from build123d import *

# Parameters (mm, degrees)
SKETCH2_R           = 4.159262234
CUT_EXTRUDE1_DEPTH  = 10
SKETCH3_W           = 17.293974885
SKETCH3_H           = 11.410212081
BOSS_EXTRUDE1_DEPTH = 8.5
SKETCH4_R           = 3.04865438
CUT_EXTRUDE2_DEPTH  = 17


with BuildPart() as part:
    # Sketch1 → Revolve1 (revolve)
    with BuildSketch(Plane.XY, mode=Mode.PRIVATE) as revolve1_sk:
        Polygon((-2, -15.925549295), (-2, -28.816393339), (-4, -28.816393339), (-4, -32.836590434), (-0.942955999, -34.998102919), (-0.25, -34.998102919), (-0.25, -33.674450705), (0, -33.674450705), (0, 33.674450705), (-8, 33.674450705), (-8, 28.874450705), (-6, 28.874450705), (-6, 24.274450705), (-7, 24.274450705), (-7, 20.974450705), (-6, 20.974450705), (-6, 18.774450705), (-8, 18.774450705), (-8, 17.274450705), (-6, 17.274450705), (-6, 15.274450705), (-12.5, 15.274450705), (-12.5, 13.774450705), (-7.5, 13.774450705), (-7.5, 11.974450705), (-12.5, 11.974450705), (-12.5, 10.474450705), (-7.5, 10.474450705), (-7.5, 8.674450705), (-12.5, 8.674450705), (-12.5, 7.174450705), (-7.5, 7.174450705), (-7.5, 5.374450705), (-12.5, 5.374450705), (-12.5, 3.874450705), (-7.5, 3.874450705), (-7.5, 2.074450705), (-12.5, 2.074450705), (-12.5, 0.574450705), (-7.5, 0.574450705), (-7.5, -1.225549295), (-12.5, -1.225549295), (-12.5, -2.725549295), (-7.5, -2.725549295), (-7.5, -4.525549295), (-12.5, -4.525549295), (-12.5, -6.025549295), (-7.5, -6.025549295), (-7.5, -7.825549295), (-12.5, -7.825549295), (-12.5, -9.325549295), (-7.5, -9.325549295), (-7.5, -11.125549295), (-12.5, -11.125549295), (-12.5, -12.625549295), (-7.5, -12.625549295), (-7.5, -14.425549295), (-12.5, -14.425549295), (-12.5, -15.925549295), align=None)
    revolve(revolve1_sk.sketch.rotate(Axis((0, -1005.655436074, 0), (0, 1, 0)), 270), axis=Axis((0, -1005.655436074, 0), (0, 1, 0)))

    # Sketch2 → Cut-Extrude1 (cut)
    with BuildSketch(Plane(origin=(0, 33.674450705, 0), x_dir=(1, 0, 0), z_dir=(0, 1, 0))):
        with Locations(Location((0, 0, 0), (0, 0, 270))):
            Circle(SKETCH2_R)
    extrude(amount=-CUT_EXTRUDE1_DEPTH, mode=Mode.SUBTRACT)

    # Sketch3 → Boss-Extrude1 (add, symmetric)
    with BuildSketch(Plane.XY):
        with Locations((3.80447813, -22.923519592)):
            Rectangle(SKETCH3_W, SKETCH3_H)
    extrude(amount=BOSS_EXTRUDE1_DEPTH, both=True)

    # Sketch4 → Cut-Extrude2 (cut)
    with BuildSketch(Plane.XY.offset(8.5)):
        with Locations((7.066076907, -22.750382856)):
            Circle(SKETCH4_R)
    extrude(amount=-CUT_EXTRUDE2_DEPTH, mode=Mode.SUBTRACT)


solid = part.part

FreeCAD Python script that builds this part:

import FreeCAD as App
import Part
import Sketcher
from FreeCAD import Vector


def add_polygon(sketch, points):
    """Adds a closed chain of lines whose ends are joined by coincident constraints."""
    first, n = sketch.GeometryCount, len(points)
    for a, b in zip(points, points[1:] + points[:1]):
        sketch.addGeometry(Part.LineSegment(App.Vector(*a, 0), App.Vector(*b, 0)), False)
    for i in range(n):
        sketch.addConstraint(Sketcher.Constraint("Coincident", first + i, 2, first + (i + 1) % n, 1))

doc = App.newDocument("Part")
body = doc.addObject("PartDesign::Body", "Body")

sketch1 = body.newObject("Sketcher::SketchObject", "Sketch")
sketch1.AttachmentSupport = (doc.getObject("XY_Plane"), [""])
sketch1.MapMode = "FlatFace"
add_polygon(sketch1, [(-2, -15.925549), (-2, -28.816393), (-4, -28.816393), (-4, -32.83659), (-0.942956, -34.998103), (-0.25, -34.998103), (-0.25, -33.674451), (0, -33.674451), (0, 33.674451), (-8, 33.674451), (-8, 28.874451), (-6, 28.874451), (-6, 24.274451), (-7, 24.274451), (-7, 20.974451), (-6, 20.974451), (-6, 18.774451), (-8, 18.774451), (-8, 17.274451), (-6, 17.274451), (-6, 15.274451), (-12.5, 15.274451), (-12.5, 13.774451), (-7.5, 13.774451), (-7.5, 11.974451), (-12.5, 11.974451), (-12.5, 10.474451), (-7.5, 10.474451), (-7.5, 8.674451), (-12.5, 8.674451), (-12.5, 7.174451), (-7.5, 7.174451), (-7.5, 5.374451), (-12.5, 5.374451), (-12.5, 3.874451), (-7.5, 3.874451), (-7.5, 2.074451), (-12.5, 2.074451), (-12.5, 0.574451), (-7.5, 0.574451), (-7.5, -1.225549), (-12.5, -1.225549), (-12.5, -2.725549), (-7.5, -2.725549), (-7.5, -4.525549), (-12.5, -4.525549), (-12.5, -6.025549), (-7.5, -6.025549), (-7.5, -7.825549), (-12.5, -7.825549), (-12.5, -9.325549), (-7.5, -9.325549), (-7.5, -11.125549), (-12.5, -11.125549), (-12.5, -12.625549), (-7.5, -12.625549), (-7.5, -14.425549), (-12.5, -14.425549), (-12.5, -15.925549)])
sketch1.addConstraint([
    Sketcher.Constraint("Vertical", 0),
    Sketcher.Constraint("Horizontal", 1),
    Sketcher.Constraint("Vertical", 2),
    Sketcher.Constraint("Horizontal", 4),
    Sketcher.Constraint("Vertical", 5),
    Sketcher.Constraint("Horizontal", 6),
    Sketcher.Constraint("Vertical", 7),
    Sketcher.Constraint("Horizontal", 8),
    Sketcher.Constraint("Vertical", 9),
    Sketcher.Constraint("Horizontal", 10),
    Sketcher.Constraint("Vertical", 11),
    Sketcher.Constraint("Horizontal", 12),
    Sketcher.Constraint("Vertical", 13),
    Sketcher.Constraint("Horizontal", 14),
    Sketcher.Constraint("Vertical", 15),
    Sketcher.Constraint("Horizontal", 16),
    Sketcher.Constraint("Vertical", 17),
    Sketcher.Constraint("Horizontal", 18),
    Sketcher.Constraint("Vertical", 19),
    Sketcher.Constraint("Horizontal", 20),
    Sketcher.Constraint("Vertical", 21),
    Sketcher.Constraint("Horizontal", 22),
    Sketcher.Constraint("Vertical", 23),
    Sketcher.Constraint("Horizontal", 24),
    Sketcher.Constraint("Vertical", 25),
    Sketcher.Constraint("Horizontal", 26),
    Sketcher.Constraint("Vertical", 27),
    Sketcher.Constraint("Horizontal", 28),
    Sketcher.Constraint("Vertical", 29),
    Sketcher.Constraint("Horizontal", 30),
    Sketcher.Constraint("Vertical", 31),
    Sketcher.Constraint("Horizontal", 32),
    Sketcher.Constraint("Vertical", 33),
    Sketcher.Constraint("Horizontal", 34),
    Sketcher.Constraint("Vertical", 35),
    Sketcher.Constraint("Horizontal", 36),
    Sketcher.Constraint("Vertical", 37),
    Sketcher.Constraint("Horizontal", 38),
    Sketcher.Constraint("Vertical", 39),
    Sketcher.Constraint("Horizontal", 40),
    Sketcher.Constraint("Vertical", 41),
    Sketcher.Constraint("Horizontal", 42),
    Sketcher.Constraint("Vertical", 43),
    Sketcher.Constraint("Horizontal", 44),
    Sketcher.Constraint("Vertical", 45),
    Sketcher.Constraint("Horizontal", 46),
    Sketcher.Constraint("Vertical", 47),
    Sketcher.Constraint("Horizontal", 48),
    Sketcher.Constraint("Vertical", 49),
    Sketcher.Constraint("Horizontal", 50),
    Sketcher.Constraint("Vertical", 51),
    Sketcher.Constraint("Horizontal", 52),
    Sketcher.Constraint("Vertical", 53),
    Sketcher.Constraint("Horizontal", 54),
    Sketcher.Constraint("Vertical", 55),
    Sketcher.Constraint("Horizontal", 56),
    Sketcher.Constraint("Vertical", 57),
    Sketcher.Constraint("Horizontal", 58),
    Sketcher.Constraint("Symmetric", 6, 2, 7, 2, -1, 1),
    Sketcher.Constraint("Vertical", 11, 2, 14, 2),
    Sketcher.Constraint("Vertical", 9, 2, 16, 2),
    Sketcher.Constraint("Vertical", 15, 2, 18, 2),
    Sketcher.Constraint("Vertical", 21, 2, 24, 2),
    Sketcher.Constraint("Vertical", 23, 2, 26, 2),
    Sketcher.Constraint("Vertical", 25, 2, 28, 2),
    Sketcher.Constraint("Vertical", 27, 2, 30, 2),
    Sketcher.Constraint("Vertical", 29, 2, 32, 2),
    Sketcher.Constraint("Vertical", 31, 2, 34, 2),
    Sketcher.Constraint("Vertical", 33, 2, 36, 2),
    Sketcher.Constraint("Vertical", 35, 2, 38, 2),
    Sketcher.Constraint("Vertical", 37, 2, 40, 2),
    Sketcher.Constraint("Vertical", 39, 2, 42, 2),
    Sketcher.Constraint("Vertical", 41, 2, 44, 2),
    Sketcher.Constraint("Vertical", 43, 2, 46, 2),
    Sketcher.Constraint("Vertical", 45, 2, 48, 2),
    Sketcher.Constraint("Vertical", 47, 2, 50, 2),
    Sketcher.Constraint("Vertical", 49, 2, 52, 2),
    Sketcher.Constraint("Vertical", 51, 2, 54, 2),
    Sketcher.Constraint("Vertical", 53, 2, 56, 2),
    Sketcher.Constraint("Equal", 1, 10),
    Sketcher.Constraint("Equal", 18, 19),
    Sketcher.Constraint("Equal", 17, 21),
    Sketcher.Constraint("Equal", 21, 25),
    Sketcher.Constraint("Equal", 23, 27),
    Sketcher.Constraint("Equal", 25, 29),
    Sketcher.Constraint("Equal", 27, 31),
    Sketcher.Constraint("Equal", 29, 33),
    Sketcher.Constraint("Equal", 31, 35),
    Sketcher.Constraint("Equal", 33, 37),
    Sketcher.Constraint("Equal", 35, 39),
    Sketcher.Constraint("Equal", 37, 41),
    Sketcher.Constraint("Equal", 39, 43),
    Sketcher.Constraint("Equal", 41, 45),
    Sketcher.Constraint("Equal", 43, 47),
    Sketcher.Constraint("Equal", 45, 49),
    Sketcher.Constraint("Equal", 47, 51),
    Sketcher.Constraint("Equal", 49, 53),
    Sketcher.Constraint("Equal", 51, 55),
    Sketcher.Constraint("Equal", 53, 57),
    Sketcher.Constraint("DistanceX", 1, 2, 1, 1, 2.0),
    Sketcher.Constraint("DistanceX", 8, 2, 8, 1, 8.0),
    Sketcher.Constraint("DistanceX", 12, 2, 12, 1, 1.0),
    Sketcher.Constraint("DistanceX", 22, 1, 22, 2, 5.0),
    Sketcher.Constraint("DistanceX", 20, 2, 20, 1, 6.5),
    Sketcher.Constraint("DistanceX", 58, 1, 58, 2, 10.5),
    Sketcher.Constraint("DistanceY", 9, 2, 9, 1, 4.8),
    Sketcher.Constraint("DistanceY", 11, 2, 11, 1, 4.6),
    Sketcher.Constraint("DistanceY", 13, 2, 13, 1, 3.3),
    Sketcher.Constraint("DistanceY", 15, 2, 15, 1, 2.2),
    Sketcher.Constraint("DistanceY", 17, 2, 17, 1, 1.5),
    Sketcher.Constraint("DistanceY", 23, 2, 23, 1, 1.8),
    Sketcher.Constraint("DistanceX", 6, 1, 6, 2, 0.25),
    Sketcher.Constraint("DistanceY", 7, 1, 7, 2, 67.348901),
    Sketcher.Constraint("DistanceX", 4, 1, 4, 2, 0.692956),
    Sketcher.Constraint("DistanceY", 0, 2, 0, 1, 12.890844),
    Sketcher.Constraint("DistanceY", 2, 2, 2, 1, 4.020197),
    Sketcher.Constraint("DistanceY", 5, 1, 5, 2, 1.323652),
])
revolution = body.newObject("PartDesign::Revolution", "Revolution")
revolution.Profile = sketch1
revolution.ReferenceAxis = (sketch1, ["V_Axis"])
revolution.Angle = 360

sketch2 = body.newObject("Sketcher::SketchObject", "Sketch001")
sketch2.AttachmentSupport = (doc.getObject("XZ_Plane"), [""])
sketch2.MapMode = "FlatFace"
sketch2.AttachmentOffset = App.Placement(Vector(0, 0, -33.674451), App.Rotation())
sketch2.addGeometry(Part.Circle(Vector(0, 0, 0), Vector(0, 0, 1), 4.159262), False)
sketch2.addConstraint([
    Sketcher.Constraint("Coincident", 0, 3, -1, 1),
    Sketcher.Constraint("Diameter", 0, 8.318524),
])
pocket1 = body.newObject("PartDesign::Pocket", "Pocket")
pocket1.Profile = sketch2
pocket1.Length = 10
pocket1.Reversed = True

sketch3 = body.newObject("Sketcher::SketchObject", "Sketch002")
sketch3.AttachmentSupport = (doc.getObject("XY_Plane"), [""])
sketch3.MapMode = "FlatFace"
add_polygon(sketch3, [(-4.842509, -17.218414), (-4.842509, -28.628626), (12.451466, -28.628626), (12.451466, -17.218414)])
sketch3.addConstraint([
    Sketcher.Constraint("Vertical", 0),
    Sketcher.Constraint("Horizontal", 1),
    Sketcher.Constraint("Vertical", 2),
    Sketcher.Constraint("Horizontal", 3),
    Sketcher.Constraint("DistanceX", 1, 1, 1, 2, 17.293975),
    Sketcher.Constraint("DistanceY", 0, 2, 0, 1, 11.410212),
    Sketcher.Constraint("DistanceX", 0, 2, -1, 1, 4.842509),
    Sketcher.Constraint("DistanceY", 0, 2, -1, 1, 28.628626),
])
pad1 = body.newObject("PartDesign::Pad", "Pad")
pad1.Profile = sketch3
pad1.Length = 17
pad1.Midplane = True

sketch4 = body.newObject("Sketcher::SketchObject", "Sketch003")
sketch4.AttachmentSupport = (doc.getObject("XY_Plane"), [""])
sketch4.MapMode = "FlatFace"
sketch4.AttachmentOffset = App.Placement(Vector(0, 0, 8.5), App.Rotation())
sketch4.addGeometry(Part.Circle(Vector(7.066077, -22.750383, 0), Vector(0, 0, 1), 3.048654), False)
sketch4.addConstraint([
    Sketcher.Constraint("Diameter", 0, 6.097309),
    Sketcher.Constraint("DistanceX", -1, 1, 0, 3, 7.066077),
    Sketcher.Constraint("DistanceY", 0, 3, -1, 1, 22.750383),
])
pocket2 = body.newObject("PartDesign::Pocket", "Pocket001")
pocket2.Profile = sketch4
pocket2.Length = 17

doc.recompute()
